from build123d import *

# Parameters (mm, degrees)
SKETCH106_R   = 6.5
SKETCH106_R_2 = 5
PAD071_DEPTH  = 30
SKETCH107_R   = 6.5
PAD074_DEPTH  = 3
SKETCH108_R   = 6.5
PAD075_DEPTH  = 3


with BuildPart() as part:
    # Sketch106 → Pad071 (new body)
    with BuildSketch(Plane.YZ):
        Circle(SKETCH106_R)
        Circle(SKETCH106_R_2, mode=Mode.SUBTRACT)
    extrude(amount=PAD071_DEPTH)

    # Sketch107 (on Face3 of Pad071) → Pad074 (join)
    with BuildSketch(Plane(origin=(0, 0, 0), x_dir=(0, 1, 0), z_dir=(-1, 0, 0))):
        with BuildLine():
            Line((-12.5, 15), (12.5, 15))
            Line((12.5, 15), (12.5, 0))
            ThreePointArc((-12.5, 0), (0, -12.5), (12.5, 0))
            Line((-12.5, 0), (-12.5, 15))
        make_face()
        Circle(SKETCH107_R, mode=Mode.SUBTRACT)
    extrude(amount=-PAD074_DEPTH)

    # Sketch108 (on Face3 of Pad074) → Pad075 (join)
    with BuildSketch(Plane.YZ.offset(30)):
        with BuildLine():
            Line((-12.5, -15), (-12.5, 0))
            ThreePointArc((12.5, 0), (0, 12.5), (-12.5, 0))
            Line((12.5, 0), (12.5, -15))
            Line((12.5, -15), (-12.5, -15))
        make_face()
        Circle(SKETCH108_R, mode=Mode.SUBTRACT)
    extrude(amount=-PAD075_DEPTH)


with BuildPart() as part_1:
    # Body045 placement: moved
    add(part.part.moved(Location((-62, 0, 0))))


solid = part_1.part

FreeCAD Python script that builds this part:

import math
import FreeCAD as App
import Part
import Sketcher

V = App.Vector
Q = App.Units.Quantity

doc = App.newDocument("Part")
params = doc.addObject("Spreadsheet::Sheet", "Params")
for row, (alias, value) in enumerate([
    ("sketch1_diameter", "13 mm"),
    ("sketch1_diameter2", "10 mm"),
    ("pad1_length", "30 mm"),
    ("sketch2_diameter", "13 mm"),
    ("sketch2_radius", "12.5 mm"),
    ("sketch2_height", "15 mm"),
    ("pad2_length", "3 mm"),
    ("sketch3_diameter", "13 mm"),
    ("sketch3_radius", "12.5 mm"),
    ("sketch3_height", "15 mm"),
    ("pad3_length", "3 mm"),
], start=1):
    params.set(f"A{row}", alias)
    params.set(f"B{row}", "=" + value)
    params.setAlias(f"B{row}", alias)

body = doc.addObject("PartDesign::Body", "Body")

# Sketch on YZ plane
sketch1 = doc.addObject("Sketcher::SketchObject", "Sketch")
body.addObject(sketch1)
sketch1.AttachmentSupport = (doc.YZ_Plane, [""])
sketch1.MapMode = "FlatFace"
sketch1.addGeometry([
    Part.Circle(V(0, 0, 0), V(0, 0, 1), 6.5),
    Part.Circle(V(0, 0, 0), V(0, 0, 1), 5),
], False)
sketch1.addConstraint([
    Sketcher.Constraint("Coincident", 0, 3, -1, 1),
    Sketcher.Constraint("Coincident", 1, 3, -1, 1),
    Sketcher.Constraint("Diameter", 0, Q("13 mm")),
    Sketcher.Constraint("Diameter", 1, Q("10 mm")),
])
sketch1.setExpression("Constraints[2]", "Params.sketch1_diameter")
sketch1.setExpression("Constraints[3]", "Params.sketch1_diameter2")
pad1 = doc.addObject("PartDesign::Pad", "Pad")
body.addObject(pad1)
pad1.Profile = sketch1
pad1.setExpression("Length", "Params.pad1_length")

# Sketch on YZ plane
sketch2 = doc.addObject("Sketcher::SketchObject", "Sketch001")
body.addObject(sketch2)
sketch2.AttachmentSupport = (doc.YZ_Plane, [""])
sketch2.MapMode = "FlatFace"
sketch2.addGeometry([
    Part.LineSegment(V(12.5, -15, 0), V(-12.5, -15, 0)),  # 0
    Part.LineSegment(V(-12.5, -15, 0), V(-12.5, 0, 0)),  # 1
    Part.ArcOfCircle(Part.Circle(V(0, 0, 0), V(0, 0, 1), 12.5), math.radians(0), math.radians(180)),  # 2
    Part.LineSegment(V(12.5, 0, 0), V(12.5, -15, 0)),  # 3
    Part.Circle(V(0, 0, 0), V(0, 0, 1), 6.5),  # 4
], False)
sketch2.addConstraint([
    Sketcher.Constraint("Coincident", 0, 2, 1, 1),
    Sketcher.Constraint("Tangent", 1, 2, 2, 2),
    Sketcher.Constraint("Tangent", 2, 1, 3, 1),
    Sketcher.Constraint("Coincident", 3, 2, 0, 1),
    Sketcher.Constraint("Horizontal", 0),
    Sketcher.Constraint("Vertical", 1),
    Sketcher.Constraint("Vertical", 3),
    Sketcher.Constraint("Coincident", 2, 3, -1, 1),
    Sketcher.Constraint("Coincident", 4, 3, -1, 1),
    Sketcher.Constraint("Diameter", 4, Q("13 mm")),
    Sketcher.Constraint("Radius", 2, Q("12.5 mm")),
    Sketcher.Constraint("DistanceY", 1, 1, 1, 2, Q("15 mm")),
])
sketch2.setExpression("Constraints[9]", "Params.sketch2_diameter")
sketch2.setExpression("Constraints[10]", "Params.sketch2_radius")
sketch2.setExpression("Constraints[11]", "Params.sketch2_height")
pad2 = doc.addObject("PartDesign::Pad", "Pad001")
body.addObject(pad2)
pad2.Profile = sketch2
pad2.setExpression("Length", "Params.pad2_length")

# Sketch on YZ plane
sketch3 = doc.addObject("Sketcher::SketchObject", "Sketch002")
body.addObject(sketch3)
sketch3.AttachmentSupport = (doc.YZ_Plane, [""])
sketch3.MapMode = "FlatFace"
sketch3.AttachmentOffset = App.Placement(V(0, 0, 30), App.Rotation())
sketch3.addGeometry([
    Part.LineSegment(V(-12.5, 0, 0), V(-12.5, -15, 0)),  # 0
    Part.LineSegment(V(-12.5, -15, 0), V(12.5, -15, 0)),  # 1
    Part.LineSegment(V(12.5, -15, 0), V(12.5, 0, 0)),  # 2
    Part.ArcOfCircle(Part.Circle(V(0, 0, 0), V(0, 0, 1), 12.5), math.radians(0), math.radians(180)),  # 3
    Part.Circle(V(0, 0, 0), V(0, 0, 1), 6.5),  # 4
], False)
sketch3.addConstraint([
    Sketcher.Constraint("Coincident", 0, 2, 1, 1),
    Sketcher.Constraint("Coincident", 1, 2, 2, 1),
    Sketcher.Constraint("Tangent", 2, 2, 3, 1),
    Sketcher.Constraint("Tangent", 3, 2, 0, 1),
    Sketcher.Constraint("Vertical", 0),
    Sketcher.Constraint("Horizontal", 1),
    Sketcher.Constraint("Vertical", 2),
    Sketcher.Constraint("Coincident", 3, 3, -1, 1),
    Sketcher.Constraint("Coincident", 4, 3, -1, 1),
    Sketcher.Constraint("Diameter", 4, Q("13 mm")),
    Sketcher.Constraint("Radius", 3, Q("12.5 mm")),
    Sketcher.Constraint("DistanceY", 0, 2, 0, 1, Q("15 mm")),
])
sketch3.setExpression("Constraints[9]", "Params.sketch3_diameter")
sketch3.setExpression("Constraints[10]", "Params.sketch3_radius")
sketch3.setExpression("Constraints[11]", "Params.sketch3_height")
pad3 = doc.addObject("PartDesign::Pad", "Pad002")
body.addObject(pad3)
pad3.Profile = sketch3
pad3.setExpression("Length", "Params.pad3_length")
pad3.Reversed = True
body2 = doc.addObject("PartDesign::Body", "Body001")
doc.recompute()

body.Placement = App.Placement(V(-62, 0, 0), App.Rotation(V(0, 0, 1), 0))
boolean = doc.addObject("PartDesign::Boolean", "Boolean")
body2.addObject(boolean)
boolean.Type = "Fuse"
boolean.addObjects([body])

doc.recompute()
